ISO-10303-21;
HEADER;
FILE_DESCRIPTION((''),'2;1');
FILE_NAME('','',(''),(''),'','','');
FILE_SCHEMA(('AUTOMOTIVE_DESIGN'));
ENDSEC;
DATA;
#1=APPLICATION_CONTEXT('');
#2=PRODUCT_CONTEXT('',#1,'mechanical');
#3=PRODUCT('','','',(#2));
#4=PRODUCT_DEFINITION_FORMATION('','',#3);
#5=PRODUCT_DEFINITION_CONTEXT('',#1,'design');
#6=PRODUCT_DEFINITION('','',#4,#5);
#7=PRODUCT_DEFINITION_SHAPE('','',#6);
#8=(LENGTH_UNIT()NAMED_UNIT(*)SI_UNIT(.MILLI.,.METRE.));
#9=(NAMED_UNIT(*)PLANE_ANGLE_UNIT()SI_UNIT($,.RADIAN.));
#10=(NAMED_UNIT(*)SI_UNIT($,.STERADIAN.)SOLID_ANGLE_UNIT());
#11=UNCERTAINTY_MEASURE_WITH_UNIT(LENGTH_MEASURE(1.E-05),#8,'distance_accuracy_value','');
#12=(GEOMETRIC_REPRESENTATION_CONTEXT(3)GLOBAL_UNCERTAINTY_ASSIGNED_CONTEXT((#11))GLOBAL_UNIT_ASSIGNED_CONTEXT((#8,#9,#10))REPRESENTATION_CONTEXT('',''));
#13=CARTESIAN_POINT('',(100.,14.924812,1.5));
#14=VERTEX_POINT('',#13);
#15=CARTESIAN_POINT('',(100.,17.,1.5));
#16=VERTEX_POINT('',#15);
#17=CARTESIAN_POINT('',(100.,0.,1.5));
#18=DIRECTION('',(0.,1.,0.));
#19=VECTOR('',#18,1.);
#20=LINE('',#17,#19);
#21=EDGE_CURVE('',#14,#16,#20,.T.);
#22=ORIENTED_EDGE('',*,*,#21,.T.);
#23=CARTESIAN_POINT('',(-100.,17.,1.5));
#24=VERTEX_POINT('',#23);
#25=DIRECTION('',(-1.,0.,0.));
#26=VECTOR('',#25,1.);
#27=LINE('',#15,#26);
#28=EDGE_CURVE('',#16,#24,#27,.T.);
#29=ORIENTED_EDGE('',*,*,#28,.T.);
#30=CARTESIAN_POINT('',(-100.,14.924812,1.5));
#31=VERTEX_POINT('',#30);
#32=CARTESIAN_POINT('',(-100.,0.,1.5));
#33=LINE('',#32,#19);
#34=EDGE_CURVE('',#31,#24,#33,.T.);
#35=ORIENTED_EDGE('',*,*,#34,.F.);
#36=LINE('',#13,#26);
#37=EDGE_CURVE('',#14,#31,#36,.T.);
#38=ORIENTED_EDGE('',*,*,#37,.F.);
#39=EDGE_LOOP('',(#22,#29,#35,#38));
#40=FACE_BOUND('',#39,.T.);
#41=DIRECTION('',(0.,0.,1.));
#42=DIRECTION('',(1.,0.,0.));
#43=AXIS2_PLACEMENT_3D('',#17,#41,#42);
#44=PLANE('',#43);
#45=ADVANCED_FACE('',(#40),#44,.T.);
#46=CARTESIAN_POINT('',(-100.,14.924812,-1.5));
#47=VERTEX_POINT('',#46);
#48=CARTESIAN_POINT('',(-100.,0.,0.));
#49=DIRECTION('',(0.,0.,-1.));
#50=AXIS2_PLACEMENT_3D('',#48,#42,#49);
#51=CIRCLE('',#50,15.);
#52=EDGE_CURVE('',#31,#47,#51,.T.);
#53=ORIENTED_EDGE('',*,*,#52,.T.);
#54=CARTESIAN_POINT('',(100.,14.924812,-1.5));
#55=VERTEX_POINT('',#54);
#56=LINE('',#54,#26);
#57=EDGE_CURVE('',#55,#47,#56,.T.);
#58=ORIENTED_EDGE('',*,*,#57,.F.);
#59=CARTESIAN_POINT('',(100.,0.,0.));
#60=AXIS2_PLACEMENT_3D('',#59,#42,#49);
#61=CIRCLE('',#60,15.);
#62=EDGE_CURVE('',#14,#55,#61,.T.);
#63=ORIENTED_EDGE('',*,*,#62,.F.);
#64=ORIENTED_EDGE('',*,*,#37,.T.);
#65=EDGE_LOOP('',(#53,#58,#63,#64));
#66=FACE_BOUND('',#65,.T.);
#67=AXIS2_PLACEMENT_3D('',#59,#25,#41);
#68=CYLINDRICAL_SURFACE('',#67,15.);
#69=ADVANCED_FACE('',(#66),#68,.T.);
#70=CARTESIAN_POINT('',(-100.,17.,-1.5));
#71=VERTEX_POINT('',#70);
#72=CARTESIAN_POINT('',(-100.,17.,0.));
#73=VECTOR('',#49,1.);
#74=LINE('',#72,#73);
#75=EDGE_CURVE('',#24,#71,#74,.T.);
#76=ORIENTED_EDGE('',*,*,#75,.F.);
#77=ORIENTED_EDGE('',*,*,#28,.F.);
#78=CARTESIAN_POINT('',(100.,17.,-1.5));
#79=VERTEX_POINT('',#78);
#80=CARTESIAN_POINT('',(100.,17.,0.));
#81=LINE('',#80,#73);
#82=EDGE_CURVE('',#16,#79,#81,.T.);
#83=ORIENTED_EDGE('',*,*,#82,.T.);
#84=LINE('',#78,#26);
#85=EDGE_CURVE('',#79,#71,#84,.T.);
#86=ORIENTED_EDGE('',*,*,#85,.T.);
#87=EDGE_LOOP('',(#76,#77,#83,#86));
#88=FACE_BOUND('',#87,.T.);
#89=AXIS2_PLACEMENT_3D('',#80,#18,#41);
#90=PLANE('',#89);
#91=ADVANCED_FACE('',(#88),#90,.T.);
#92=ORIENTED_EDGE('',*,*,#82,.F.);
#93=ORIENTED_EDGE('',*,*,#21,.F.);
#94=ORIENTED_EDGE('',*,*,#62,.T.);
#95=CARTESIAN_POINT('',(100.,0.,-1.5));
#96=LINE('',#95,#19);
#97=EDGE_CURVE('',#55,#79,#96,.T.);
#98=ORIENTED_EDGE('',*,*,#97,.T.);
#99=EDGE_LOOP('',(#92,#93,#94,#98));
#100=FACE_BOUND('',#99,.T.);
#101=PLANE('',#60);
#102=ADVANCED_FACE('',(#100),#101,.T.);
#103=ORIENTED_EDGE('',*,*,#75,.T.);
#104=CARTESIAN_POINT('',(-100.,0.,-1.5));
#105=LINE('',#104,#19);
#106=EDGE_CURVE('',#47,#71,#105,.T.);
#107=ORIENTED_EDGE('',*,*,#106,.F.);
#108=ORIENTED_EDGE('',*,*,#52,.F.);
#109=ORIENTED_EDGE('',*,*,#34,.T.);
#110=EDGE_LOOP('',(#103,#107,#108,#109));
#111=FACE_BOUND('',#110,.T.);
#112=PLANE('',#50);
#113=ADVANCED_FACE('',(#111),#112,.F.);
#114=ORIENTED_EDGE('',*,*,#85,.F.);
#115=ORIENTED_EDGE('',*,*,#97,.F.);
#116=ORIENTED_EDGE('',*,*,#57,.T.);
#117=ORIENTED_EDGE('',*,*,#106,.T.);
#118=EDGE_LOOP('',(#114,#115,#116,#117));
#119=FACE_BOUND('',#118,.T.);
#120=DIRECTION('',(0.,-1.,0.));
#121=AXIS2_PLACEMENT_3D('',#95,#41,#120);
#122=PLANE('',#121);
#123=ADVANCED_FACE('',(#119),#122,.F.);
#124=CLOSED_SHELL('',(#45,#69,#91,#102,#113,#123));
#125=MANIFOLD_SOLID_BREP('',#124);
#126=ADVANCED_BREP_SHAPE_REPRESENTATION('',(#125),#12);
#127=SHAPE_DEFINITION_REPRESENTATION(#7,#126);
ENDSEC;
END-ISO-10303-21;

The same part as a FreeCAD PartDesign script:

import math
import FreeCAD as App
import Part
import Sketcher

V = App.Vector

doc = App.newDocument("Part")
params = doc.addObject("Spreadsheet::Sheet", "Params")
for row, (alias, value) in enumerate([
    ("sketch1_radius", "15 mm"),
    ("sketch1_height", "3 mm"),
    ("pad1_length", "200 mm"),
], start=1):
    params.set(f"A{row}", alias)
    params.set(f"B{row}", "=" + value)
    params.setAlias(f"B{row}", alias)

body = doc.addObject("PartDesign::Body", "Body")

# Sketch on YZ plane
sketch1 = body.newObject("Sketcher::SketchObject", "Sketch")
sketch1.AttachmentSupport = (doc.getObject("YZ_Plane"), [""])
sketch1.MapMode = "FlatFace"
sketch1.addGeometry([
    Part.ArcOfCircle(Part.Circle(V(0, 0, 0), V(0, 0, 1), 15), math.radians(6), math.radians(270)),  # 0
    Part.ArcOfCircle(Part.Circle(V(0, 0, 0), V(0, 0, 1), 15), math.radians(-90), math.radians(-6)),  # 1
    Part.LineSegment(V(14.9, -1.5, 0), V(17, -1.5, 0)),  # 2
    Part.LineSegment(V(17, -1.5, 0), V(17, 1.5, 0)),  # 3
    Part.LineSegment(V(17, 1.5, 0), V(14.9, 1.5, 0)),  # 4
], False)
sketch1.addConstraint([
    Sketcher.Constraint("Tangent", 0, 2, 1, 1),
    Sketcher.Constraint("Coincident", 1, 2, 2, 1),
    Sketcher.Constraint("Coincident", 2, 2, 3, 1),
    Sketcher.Constraint("Coincident", 3, 2, 4, 1),
    Sketcher.Constraint("Coincident", 4, 2, 0, 1),
    Sketcher.Constraint("Horizontal", 2),
    Sketcher.Constraint("Vertical", 3),
    Sketcher.Constraint("Horizontal", 4),
    Sketcher.Constraint("Coincident", 0, 3, -1, 1),
    Sketcher.Constraint("Equal", 0, 1),
    Sketcher.Constraint("PointOnObject", 0, 2, -2),
    Sketcher.Constraint("Vertical", 1, 2, 4, 2),
    Sketcher.Constraint("Radius", 0, 15.0),
    Sketcher.Constraint("DistanceY", 3, 1, 3, 2, 3.0),
    Sketcher.Constraint("DistanceX", -1, 1, 2, 2, 17.0),
])
sketch1.setExpression("Constraints[12]", "Params.sketch1_radius")
sketch1.setExpression("Constraints[13]", "Params.sketch1_height")
pad1 = body.newObject("PartDesign::Pad", "Pad")
pad1.Profile = sketch1
pad1.setExpression("Length", "Params.pad1_length")
pad1.Midplane = True

doc.recompute()
